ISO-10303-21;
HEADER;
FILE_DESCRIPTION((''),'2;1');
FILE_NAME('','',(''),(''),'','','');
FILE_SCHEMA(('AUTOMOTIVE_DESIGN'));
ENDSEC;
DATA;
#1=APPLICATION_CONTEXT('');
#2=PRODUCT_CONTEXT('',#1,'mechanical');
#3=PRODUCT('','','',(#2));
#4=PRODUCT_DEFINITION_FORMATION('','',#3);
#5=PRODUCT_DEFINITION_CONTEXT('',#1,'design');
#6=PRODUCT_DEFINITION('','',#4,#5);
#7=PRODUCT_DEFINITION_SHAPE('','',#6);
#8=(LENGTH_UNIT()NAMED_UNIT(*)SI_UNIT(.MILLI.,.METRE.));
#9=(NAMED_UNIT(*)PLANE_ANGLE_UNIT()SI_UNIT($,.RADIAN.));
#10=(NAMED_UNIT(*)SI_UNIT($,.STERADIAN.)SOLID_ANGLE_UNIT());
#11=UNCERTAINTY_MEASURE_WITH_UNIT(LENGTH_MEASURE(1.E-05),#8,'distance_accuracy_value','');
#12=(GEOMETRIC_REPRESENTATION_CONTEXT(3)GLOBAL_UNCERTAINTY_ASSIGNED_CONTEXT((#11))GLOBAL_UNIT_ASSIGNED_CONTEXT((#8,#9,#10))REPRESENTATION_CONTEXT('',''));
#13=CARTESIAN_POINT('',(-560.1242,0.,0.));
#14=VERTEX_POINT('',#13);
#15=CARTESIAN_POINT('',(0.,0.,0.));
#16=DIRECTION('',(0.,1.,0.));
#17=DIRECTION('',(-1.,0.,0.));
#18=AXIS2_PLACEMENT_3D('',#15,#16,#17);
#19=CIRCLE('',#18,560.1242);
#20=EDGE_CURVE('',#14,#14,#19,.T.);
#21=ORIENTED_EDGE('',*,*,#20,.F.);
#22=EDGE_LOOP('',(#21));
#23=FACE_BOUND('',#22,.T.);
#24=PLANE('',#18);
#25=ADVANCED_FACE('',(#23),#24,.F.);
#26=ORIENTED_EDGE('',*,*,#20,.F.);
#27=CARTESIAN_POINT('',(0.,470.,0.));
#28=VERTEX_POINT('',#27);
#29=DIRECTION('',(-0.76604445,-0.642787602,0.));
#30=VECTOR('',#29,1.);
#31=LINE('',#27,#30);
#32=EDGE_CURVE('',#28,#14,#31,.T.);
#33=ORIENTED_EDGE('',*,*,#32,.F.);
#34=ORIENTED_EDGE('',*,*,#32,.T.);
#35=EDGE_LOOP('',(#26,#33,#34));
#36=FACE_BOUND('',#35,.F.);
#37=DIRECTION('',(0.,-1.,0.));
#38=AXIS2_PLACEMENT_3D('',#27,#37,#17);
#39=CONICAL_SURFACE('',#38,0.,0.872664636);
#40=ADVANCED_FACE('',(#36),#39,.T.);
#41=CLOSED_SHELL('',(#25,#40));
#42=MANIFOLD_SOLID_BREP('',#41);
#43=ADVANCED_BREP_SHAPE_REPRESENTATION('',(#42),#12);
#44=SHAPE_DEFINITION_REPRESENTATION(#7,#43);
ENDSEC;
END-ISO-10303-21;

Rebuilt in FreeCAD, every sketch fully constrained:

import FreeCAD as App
import Part
import Sketcher
Q = App.Units.Quantity

doc = App.newDocument("Part")
body = doc.addObject("PartDesign::Body", "Body")

# Sketch on XY plane
sketch1 = doc.addObject("Sketcher::SketchObject", "Sketch")
body.addObject(sketch1)
sketch1.AttachmentSupport = (doc.XY_Plane, [""])
sketch1.MapMode = "FlatFace"
sketch1.addGeometry(Part.LineSegment(App.Vector(0, 0, 0), App.Vector(0, 470, 0)), False)
sketch1.addGeometry(Part.LineSegment(App.Vector(0, 470, 0), App.Vector(-560.1242, 0, 0)), False)
sketch1.addGeometry(Part.LineSegment(App.Vector(-560.1242, 0, 0), App.Vector(0, 0, 0)), False)
sketch1.addConstraint(Sketcher.Constraint("Coincident", 0, 2, 1, 1))
sketch1.addConstraint(Sketcher.Constraint("Coincident", 1, 2, 2, 1))
sketch1.addConstraint(Sketcher.Constraint("Coincident", 2, 2, 0, 1))
sketch1.addConstraint(Sketcher.Constraint("Vertical", 0))
sketch1.addConstraint(Sketcher.Constraint("Horizontal", 2))
sketch1.addConstraint(Sketcher.Constraint("Coincident", 2, 2, -1, 1))
sketch1.addConstraint(Sketcher.Constraint("DistanceY", 0, 1, 0, 2, 470.0))
sketch1.addConstraint(Sketcher.Constraint("Angle", 1, Q("-140 deg")))
revolution = doc.addObject("PartDesign::Revolution", "Revolution")
body.addObject(revolution)
revolution.Profile = sketch1
revolution.ReferenceAxis = (sketch1, ["V_Axis"])
revolution.Angle = 360

doc.recompute()
